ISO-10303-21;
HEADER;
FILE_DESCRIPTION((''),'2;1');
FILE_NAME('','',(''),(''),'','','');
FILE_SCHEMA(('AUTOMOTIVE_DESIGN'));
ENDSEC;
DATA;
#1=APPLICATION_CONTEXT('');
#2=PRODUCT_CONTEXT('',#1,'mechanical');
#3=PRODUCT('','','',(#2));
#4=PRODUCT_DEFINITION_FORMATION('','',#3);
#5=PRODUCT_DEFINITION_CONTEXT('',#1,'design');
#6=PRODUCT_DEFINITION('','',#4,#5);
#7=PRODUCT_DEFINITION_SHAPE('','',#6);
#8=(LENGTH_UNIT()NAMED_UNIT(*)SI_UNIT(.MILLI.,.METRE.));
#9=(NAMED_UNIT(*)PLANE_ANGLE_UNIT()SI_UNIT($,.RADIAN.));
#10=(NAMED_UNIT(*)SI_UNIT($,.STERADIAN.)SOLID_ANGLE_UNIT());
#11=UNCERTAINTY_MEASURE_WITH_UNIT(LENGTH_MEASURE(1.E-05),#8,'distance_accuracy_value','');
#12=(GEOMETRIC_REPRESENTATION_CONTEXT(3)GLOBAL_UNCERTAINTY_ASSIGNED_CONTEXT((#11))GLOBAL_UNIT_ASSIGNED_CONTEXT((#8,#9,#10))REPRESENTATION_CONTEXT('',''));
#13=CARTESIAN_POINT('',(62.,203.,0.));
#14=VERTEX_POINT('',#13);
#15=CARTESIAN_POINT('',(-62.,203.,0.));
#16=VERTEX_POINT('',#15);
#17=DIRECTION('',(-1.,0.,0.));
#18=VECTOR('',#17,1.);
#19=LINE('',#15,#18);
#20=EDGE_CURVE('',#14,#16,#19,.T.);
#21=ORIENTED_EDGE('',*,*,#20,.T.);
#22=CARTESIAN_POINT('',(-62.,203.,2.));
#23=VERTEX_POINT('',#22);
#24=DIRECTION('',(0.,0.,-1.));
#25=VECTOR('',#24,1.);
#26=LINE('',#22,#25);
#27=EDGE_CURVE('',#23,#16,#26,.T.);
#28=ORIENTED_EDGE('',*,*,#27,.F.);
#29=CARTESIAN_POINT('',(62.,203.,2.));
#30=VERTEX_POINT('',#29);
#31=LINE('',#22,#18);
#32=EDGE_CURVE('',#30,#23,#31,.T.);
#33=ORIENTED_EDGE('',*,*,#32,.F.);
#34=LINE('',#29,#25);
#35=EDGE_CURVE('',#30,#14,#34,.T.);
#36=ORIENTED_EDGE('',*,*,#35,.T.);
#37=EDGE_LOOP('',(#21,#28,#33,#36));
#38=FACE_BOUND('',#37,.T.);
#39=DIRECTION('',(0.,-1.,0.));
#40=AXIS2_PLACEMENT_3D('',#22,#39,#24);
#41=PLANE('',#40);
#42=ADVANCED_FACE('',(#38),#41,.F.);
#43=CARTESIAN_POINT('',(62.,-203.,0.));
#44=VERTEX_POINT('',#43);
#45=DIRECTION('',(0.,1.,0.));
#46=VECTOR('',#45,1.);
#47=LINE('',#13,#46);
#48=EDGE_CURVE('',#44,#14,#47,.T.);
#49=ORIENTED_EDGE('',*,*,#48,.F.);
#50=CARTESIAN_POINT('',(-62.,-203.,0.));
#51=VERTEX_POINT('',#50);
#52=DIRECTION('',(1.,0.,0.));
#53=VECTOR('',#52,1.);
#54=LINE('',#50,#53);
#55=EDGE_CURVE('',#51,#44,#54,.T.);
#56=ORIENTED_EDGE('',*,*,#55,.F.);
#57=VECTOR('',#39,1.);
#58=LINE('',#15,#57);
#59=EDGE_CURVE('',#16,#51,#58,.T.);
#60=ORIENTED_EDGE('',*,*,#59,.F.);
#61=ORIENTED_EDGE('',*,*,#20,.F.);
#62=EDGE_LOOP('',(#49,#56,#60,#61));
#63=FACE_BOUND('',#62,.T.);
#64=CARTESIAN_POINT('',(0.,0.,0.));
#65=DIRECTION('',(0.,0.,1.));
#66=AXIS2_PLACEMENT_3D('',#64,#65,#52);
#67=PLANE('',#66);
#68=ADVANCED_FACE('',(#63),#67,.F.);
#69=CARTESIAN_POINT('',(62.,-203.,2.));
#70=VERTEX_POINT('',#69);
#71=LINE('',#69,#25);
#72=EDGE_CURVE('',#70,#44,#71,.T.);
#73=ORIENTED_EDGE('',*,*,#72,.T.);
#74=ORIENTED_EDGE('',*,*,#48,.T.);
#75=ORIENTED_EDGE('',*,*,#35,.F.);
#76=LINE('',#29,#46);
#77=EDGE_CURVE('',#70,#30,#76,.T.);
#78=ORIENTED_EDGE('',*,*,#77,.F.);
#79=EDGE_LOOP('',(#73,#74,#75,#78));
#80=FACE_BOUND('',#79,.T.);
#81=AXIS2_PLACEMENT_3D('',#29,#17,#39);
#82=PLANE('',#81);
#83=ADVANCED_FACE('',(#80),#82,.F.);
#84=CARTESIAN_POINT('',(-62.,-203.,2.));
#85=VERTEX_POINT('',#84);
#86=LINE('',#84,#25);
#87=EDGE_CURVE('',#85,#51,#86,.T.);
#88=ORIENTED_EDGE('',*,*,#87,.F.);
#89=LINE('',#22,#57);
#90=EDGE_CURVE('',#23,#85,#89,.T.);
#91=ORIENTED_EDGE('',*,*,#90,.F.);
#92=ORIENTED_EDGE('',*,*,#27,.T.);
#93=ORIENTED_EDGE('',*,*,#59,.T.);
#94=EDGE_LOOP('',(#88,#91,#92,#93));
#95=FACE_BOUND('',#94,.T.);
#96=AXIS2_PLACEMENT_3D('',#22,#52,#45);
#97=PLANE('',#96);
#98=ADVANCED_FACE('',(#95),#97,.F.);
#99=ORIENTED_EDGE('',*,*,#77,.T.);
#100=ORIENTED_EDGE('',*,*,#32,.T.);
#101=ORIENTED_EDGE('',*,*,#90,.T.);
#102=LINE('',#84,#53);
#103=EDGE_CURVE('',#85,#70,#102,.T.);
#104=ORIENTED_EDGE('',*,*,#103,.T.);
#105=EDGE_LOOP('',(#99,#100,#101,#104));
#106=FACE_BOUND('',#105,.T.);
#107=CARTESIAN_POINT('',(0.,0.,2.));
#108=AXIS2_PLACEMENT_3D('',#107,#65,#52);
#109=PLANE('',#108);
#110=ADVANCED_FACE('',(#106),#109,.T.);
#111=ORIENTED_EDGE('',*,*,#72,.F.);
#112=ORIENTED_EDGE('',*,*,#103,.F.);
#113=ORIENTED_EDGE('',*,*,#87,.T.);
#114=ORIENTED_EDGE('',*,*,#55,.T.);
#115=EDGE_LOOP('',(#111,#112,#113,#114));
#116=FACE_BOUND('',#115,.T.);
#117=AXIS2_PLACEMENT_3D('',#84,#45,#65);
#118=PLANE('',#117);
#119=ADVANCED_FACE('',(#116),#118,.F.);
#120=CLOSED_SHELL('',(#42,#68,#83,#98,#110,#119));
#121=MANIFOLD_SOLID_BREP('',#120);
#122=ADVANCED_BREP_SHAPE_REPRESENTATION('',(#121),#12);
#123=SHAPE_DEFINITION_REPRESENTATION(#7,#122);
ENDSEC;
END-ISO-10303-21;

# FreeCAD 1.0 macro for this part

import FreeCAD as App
import Part
import Sketcher

V = App.Vector


def add_polygon(sketch, points):
    """Adds a closed chain of lines whose ends are joined by coincident constraints."""
    first, n = sketch.GeometryCount, len(points)
    for a, b in zip(points, points[1:] + points[:1]):
        sketch.addGeometry(Part.LineSegment(App.Vector(*a, 0), App.Vector(*b, 0)), False)
    for i in range(n):
        sketch.addConstraint(Sketcher.Constraint("Coincident", first + i, 2, first + (i + 1) % n, 1))

doc = App.newDocument("Part")
params = doc.addObject("Spreadsheet::Sheet", "Params")
for row, (alias, value) in enumerate([
    ("sketch1_width", "124 mm"),
    ("sketch1_height", "406 mm"),
    ("pad1_length", "2 mm"),
], start=1):
    params.set(f"A{row}", alias)
    params.set(f"B{row}", "=" + value)
    params.setAlias(f"B{row}", alias)

body = doc.addObject("PartDesign::Body", "Body")

# Sketch on XY plane
sketch1 = body.newObject("Sketcher::SketchObject", "Sketch")
sketch1.AttachmentSupport = (doc.getObject("XY_Plane"), [""])
sketch1.MapMode = "FlatFace"
add_polygon(sketch1, [(-62, 203), (-62, -203), (62, -203), (62, 203)])  # lines 0-3
sketch1.addConstraint([
    Sketcher.Constraint("Vertical", 0),
    Sketcher.Constraint("Horizontal", 1),
    Sketcher.Constraint("Vertical", 2),
    Sketcher.Constraint("Horizontal", 3),
    Sketcher.Constraint("Symmetric", 0, 2, 2, 2, -1, 1),
    Sketcher.Constraint("DistanceX", 1, 1, 1, 2, 124.0),
    Sketcher.Constraint("DistanceY", 0, 2, 0, 1, 406.0),
])
sketch1.setExpression("Constraints[9]", "Params.sketch1_width")
sketch1.setExpression("Constraints[10]", "Params.sketch1_height")
pad1 = body.newObject("PartDesign::Pad", "Pad")
pad1.Profile = sketch1
pad1.setExpression("Length", "Params.pad1_length")

doc.recompute()
